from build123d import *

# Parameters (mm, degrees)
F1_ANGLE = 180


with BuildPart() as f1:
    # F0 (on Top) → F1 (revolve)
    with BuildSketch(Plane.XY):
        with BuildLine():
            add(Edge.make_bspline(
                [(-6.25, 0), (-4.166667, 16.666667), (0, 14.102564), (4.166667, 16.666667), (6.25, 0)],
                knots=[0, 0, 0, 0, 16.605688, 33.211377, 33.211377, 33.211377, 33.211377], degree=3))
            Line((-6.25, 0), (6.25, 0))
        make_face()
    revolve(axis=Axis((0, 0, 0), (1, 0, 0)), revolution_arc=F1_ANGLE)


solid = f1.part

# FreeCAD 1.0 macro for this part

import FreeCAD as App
import Part
import Sketcher
from FreeCAD import Vector

doc = App.newDocument("Part")
params = doc.addObject("Spreadsheet::Sheet", "Params")
for row, (alias, value) in enumerate([
    ("revolution_angle", "180 deg"),
], start=1):
    params.set(f"A{row}", alias)
    params.set(f"B{row}", "=" + value)
    params.setAlias(f"B{row}", alias)

body = doc.addObject("PartDesign::Body", "Body")

sketch1 = doc.addObject("Sketcher::SketchObject", "Sketch")
body.addObject(sketch1)
sketch1.AttachmentSupport = (doc.XY_Plane, [""])
sketch1.MapMode = "FlatFace"
sketch1.addGeometry([
    Part.BSplineCurve([Vector(-6.25, 0, 0), Vector(-4.166667, 16.666667, 0), Vector(0, 14.102564, 0), Vector(4.166667, 16.666667, 0), Vector(6.25, 0, 0)], [4, 1, 4], [0, 16.605688, 33.211377], False, 3, [1, 1, 1, 1, 1], False),
    Part.LineSegment(Vector(-6.25, 0, 0), Vector(6.25, 0, 0)),
], False)
sketch1.addConstraint([
    Sketcher.Constraint("Block", 0),
    Sketcher.Constraint("Coincident", 0, 1, 1, 1),
    Sketcher.Constraint("Coincident", 1, 2, 0, 2),
])
revolution = doc.addObject("PartDesign::Revolution", "Revolution")
body.addObject(revolution)
revolution.Profile = sketch1
revolution.ReferenceAxis = (sketch1, ["H_Axis"])
revolution.setExpression("Angle", "Params.revolution_angle")

doc.recompute()
